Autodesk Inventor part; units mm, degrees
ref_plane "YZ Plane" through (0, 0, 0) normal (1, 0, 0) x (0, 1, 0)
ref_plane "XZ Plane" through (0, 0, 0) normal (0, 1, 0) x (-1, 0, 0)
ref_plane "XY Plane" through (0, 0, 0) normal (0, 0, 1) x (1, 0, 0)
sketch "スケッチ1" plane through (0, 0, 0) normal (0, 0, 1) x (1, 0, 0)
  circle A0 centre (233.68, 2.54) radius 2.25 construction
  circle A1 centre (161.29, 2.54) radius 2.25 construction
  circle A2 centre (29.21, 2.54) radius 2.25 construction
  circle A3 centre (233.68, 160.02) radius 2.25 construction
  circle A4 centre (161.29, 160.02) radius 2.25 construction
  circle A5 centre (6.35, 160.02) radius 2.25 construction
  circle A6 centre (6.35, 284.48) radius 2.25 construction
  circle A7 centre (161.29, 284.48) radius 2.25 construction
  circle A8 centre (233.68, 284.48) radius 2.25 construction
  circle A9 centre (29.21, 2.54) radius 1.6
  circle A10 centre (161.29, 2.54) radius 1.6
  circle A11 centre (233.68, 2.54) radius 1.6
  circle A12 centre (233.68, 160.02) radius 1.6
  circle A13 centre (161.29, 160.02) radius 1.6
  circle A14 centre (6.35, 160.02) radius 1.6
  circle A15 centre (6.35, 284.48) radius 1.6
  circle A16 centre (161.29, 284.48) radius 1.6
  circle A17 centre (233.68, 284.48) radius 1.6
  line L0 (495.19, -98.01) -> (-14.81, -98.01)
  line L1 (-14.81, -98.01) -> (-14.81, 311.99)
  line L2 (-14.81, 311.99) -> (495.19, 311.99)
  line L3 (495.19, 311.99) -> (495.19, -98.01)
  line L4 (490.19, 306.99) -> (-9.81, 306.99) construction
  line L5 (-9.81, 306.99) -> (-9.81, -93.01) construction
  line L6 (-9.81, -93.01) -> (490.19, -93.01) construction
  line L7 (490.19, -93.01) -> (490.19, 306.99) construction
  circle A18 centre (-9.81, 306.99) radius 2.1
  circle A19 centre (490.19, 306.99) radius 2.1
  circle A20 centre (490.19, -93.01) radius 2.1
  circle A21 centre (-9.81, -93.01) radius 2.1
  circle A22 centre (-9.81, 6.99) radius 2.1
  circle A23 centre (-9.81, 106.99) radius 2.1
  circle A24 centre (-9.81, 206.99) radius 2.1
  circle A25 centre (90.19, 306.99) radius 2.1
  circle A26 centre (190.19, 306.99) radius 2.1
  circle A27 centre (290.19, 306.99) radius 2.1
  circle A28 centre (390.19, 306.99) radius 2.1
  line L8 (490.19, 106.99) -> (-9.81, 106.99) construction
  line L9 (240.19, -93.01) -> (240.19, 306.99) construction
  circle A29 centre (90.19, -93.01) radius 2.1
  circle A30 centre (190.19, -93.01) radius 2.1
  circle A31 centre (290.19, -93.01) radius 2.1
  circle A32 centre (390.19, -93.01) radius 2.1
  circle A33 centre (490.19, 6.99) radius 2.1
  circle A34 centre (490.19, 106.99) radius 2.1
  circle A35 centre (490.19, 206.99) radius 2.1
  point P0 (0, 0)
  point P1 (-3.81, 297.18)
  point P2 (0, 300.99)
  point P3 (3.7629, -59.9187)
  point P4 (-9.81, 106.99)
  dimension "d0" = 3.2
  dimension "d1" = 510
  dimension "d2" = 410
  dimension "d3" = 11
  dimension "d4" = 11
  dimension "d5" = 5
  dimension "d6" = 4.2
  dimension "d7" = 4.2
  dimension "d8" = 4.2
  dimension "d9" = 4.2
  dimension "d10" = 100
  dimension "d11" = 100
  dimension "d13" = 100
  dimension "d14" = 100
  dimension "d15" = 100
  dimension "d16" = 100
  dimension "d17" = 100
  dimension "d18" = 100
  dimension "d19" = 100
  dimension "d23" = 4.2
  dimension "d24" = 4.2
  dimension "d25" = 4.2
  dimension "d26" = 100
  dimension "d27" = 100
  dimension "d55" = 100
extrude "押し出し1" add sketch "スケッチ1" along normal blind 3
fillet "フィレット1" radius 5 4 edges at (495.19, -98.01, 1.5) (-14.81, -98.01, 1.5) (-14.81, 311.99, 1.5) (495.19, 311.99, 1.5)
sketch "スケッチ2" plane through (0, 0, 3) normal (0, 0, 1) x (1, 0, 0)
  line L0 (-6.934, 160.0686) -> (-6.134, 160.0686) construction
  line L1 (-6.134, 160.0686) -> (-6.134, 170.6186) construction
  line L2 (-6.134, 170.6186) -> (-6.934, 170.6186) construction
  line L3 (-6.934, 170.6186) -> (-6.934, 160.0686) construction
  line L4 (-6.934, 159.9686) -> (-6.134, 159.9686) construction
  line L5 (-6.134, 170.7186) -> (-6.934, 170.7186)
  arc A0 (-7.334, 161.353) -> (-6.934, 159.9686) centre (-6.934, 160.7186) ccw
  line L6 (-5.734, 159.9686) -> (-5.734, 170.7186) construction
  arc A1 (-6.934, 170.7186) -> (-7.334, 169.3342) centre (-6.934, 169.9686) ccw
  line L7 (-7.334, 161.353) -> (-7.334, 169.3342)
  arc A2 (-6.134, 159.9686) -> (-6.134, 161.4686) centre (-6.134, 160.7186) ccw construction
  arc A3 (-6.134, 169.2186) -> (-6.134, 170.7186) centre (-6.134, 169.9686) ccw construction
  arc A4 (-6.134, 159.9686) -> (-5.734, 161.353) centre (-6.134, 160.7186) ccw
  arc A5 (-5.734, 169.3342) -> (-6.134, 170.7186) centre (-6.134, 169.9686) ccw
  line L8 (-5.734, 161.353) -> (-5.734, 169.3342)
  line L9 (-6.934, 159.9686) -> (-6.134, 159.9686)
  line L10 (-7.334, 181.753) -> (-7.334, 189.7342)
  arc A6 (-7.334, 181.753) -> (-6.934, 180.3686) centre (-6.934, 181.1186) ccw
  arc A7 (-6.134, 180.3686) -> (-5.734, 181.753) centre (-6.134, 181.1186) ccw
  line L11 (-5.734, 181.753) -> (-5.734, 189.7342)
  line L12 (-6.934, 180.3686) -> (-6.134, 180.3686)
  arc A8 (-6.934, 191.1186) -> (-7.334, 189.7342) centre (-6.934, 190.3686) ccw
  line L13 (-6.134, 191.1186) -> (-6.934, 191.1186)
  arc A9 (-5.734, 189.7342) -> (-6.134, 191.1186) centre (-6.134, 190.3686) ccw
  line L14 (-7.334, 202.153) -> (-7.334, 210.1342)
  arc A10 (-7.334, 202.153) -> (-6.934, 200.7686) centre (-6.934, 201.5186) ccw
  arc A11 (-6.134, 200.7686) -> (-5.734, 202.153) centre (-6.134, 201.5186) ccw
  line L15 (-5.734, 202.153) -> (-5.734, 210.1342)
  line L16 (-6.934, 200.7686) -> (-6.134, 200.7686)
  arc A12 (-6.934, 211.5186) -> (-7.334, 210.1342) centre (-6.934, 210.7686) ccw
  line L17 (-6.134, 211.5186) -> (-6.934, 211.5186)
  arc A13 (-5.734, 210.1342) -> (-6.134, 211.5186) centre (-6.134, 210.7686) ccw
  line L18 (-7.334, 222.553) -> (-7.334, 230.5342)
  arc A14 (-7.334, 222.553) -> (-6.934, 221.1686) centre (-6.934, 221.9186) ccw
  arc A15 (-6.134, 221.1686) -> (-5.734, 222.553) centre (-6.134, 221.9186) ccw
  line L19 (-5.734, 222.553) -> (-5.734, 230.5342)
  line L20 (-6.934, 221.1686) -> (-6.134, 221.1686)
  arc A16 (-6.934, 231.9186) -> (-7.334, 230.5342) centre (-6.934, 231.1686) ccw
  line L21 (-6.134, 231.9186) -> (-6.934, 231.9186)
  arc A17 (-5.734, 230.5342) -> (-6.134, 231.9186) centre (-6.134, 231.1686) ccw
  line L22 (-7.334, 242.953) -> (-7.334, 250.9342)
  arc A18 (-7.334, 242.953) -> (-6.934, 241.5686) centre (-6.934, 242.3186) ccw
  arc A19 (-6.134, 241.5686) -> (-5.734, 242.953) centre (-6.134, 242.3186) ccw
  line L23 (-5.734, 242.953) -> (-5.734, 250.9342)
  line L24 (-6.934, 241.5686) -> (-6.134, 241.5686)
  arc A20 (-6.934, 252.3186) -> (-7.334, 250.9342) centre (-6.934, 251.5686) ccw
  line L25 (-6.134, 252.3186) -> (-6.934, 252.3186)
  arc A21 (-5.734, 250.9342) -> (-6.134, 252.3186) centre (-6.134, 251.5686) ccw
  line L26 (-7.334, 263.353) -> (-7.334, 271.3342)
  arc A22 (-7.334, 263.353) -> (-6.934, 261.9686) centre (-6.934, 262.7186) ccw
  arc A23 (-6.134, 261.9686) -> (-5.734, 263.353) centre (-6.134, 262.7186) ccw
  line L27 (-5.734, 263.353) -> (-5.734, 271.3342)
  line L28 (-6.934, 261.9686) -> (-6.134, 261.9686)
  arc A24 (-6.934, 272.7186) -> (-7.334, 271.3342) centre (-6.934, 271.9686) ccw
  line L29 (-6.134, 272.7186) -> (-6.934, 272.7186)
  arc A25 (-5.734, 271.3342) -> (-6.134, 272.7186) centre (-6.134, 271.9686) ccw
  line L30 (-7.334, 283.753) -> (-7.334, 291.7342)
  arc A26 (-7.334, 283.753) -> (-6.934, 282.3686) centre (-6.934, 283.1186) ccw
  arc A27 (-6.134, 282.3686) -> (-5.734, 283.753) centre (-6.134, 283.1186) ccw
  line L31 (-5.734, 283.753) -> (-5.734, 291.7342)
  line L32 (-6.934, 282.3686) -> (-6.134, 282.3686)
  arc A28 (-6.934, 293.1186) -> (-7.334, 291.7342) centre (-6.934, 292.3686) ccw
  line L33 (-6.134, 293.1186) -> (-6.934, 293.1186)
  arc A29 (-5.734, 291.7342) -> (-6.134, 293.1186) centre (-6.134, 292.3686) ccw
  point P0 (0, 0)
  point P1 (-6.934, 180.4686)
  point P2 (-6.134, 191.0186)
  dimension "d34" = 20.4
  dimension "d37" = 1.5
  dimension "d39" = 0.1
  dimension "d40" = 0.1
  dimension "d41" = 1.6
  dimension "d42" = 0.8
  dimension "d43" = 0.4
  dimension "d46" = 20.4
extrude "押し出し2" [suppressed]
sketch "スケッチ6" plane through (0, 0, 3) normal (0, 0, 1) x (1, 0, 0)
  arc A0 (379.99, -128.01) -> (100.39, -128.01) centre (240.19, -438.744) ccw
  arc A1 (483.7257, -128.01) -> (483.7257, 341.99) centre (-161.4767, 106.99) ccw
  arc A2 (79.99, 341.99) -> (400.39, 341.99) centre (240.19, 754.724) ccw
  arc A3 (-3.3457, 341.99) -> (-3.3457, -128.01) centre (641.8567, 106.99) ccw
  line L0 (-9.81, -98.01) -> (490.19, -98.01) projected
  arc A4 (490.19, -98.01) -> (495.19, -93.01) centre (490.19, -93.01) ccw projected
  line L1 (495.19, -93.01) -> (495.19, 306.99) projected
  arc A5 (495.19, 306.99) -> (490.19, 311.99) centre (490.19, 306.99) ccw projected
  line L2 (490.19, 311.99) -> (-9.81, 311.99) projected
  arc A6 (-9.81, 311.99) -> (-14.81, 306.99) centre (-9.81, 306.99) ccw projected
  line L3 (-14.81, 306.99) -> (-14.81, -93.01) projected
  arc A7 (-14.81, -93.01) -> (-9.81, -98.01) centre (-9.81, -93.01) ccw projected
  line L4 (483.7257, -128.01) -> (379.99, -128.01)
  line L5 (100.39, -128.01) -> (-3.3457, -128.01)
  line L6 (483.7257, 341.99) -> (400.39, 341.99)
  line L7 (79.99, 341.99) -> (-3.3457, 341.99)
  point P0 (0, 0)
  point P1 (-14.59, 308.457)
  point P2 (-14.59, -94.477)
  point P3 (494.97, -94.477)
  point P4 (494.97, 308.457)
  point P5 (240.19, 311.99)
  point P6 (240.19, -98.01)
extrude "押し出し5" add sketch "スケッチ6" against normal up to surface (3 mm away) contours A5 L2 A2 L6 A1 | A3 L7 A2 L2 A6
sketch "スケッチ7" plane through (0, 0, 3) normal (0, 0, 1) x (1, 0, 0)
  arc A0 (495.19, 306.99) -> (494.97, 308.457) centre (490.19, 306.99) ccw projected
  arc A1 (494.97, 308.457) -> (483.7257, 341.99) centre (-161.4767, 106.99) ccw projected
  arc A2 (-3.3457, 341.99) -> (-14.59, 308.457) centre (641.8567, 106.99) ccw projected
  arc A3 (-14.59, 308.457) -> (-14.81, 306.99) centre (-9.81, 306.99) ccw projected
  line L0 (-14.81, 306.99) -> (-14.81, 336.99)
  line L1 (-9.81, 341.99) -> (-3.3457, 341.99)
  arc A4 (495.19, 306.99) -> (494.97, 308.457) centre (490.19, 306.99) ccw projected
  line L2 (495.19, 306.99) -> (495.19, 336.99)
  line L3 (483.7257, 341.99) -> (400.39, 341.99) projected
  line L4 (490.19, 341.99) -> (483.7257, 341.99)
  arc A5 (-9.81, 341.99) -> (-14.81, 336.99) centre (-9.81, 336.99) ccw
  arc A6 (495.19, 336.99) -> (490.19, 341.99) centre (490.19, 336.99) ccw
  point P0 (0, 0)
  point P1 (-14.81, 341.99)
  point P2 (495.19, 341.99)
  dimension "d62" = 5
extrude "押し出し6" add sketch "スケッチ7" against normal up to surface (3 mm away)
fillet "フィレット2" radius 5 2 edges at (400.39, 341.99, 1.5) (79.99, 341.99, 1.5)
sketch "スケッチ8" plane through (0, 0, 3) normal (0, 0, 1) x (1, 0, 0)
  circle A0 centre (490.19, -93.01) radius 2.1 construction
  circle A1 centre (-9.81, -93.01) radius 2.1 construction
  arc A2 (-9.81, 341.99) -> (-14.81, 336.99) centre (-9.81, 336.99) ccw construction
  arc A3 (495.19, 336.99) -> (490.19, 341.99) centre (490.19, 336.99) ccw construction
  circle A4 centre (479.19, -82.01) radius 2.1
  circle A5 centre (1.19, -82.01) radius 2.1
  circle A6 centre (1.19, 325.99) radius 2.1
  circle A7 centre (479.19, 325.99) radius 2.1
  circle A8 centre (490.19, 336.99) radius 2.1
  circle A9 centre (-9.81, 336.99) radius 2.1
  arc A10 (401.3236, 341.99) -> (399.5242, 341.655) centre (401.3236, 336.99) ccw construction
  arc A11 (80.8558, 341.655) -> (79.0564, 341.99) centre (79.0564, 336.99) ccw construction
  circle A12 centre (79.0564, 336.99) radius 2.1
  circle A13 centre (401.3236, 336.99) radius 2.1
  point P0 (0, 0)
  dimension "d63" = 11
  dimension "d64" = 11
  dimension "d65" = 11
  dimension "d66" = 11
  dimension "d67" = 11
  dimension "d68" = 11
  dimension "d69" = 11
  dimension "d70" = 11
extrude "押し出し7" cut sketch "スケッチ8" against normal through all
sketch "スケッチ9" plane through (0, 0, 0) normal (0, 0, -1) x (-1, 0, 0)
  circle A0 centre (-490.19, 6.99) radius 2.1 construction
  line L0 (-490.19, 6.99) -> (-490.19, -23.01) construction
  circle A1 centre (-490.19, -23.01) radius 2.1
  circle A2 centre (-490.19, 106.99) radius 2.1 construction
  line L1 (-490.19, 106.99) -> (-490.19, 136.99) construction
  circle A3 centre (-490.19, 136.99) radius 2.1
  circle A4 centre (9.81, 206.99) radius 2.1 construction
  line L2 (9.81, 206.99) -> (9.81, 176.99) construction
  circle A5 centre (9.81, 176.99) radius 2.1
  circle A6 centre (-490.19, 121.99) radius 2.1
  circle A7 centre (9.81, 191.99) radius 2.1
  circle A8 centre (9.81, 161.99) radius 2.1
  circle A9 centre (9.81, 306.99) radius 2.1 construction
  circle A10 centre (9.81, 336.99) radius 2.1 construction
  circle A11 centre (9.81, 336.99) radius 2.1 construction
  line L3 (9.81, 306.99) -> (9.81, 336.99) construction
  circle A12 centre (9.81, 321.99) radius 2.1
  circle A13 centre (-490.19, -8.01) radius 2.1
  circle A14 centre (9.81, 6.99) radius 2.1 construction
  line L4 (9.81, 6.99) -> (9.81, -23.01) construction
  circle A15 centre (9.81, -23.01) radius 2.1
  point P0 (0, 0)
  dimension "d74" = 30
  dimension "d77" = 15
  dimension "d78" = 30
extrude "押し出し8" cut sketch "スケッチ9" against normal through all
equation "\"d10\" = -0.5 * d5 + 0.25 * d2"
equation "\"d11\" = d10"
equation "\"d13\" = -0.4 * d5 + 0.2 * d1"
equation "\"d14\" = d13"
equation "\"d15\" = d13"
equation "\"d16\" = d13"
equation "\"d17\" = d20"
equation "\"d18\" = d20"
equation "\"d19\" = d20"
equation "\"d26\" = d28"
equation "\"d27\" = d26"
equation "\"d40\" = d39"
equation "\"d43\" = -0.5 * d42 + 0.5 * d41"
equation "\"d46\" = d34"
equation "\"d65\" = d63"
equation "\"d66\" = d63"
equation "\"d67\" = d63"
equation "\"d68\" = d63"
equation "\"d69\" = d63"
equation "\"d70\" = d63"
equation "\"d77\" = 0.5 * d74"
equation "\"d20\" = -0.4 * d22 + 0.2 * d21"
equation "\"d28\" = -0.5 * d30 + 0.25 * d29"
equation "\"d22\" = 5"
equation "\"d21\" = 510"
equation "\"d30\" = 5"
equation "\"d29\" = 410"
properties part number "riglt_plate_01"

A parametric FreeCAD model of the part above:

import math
import FreeCAD as App
import Part
import Sketcher
from FreeCAD import Vector


def edges_at(feature, points):
    """Names of the edges that pass closest to the given points."""
    edges = feature.Shape.Edges
    near = lambda p: min(range(len(edges)), key=lambda i: edges[i].distToShape(Part.Vertex(*p))[0])
    return sorted({f"Edge{near(p) + 1}" for p in points})

doc = App.newDocument("Part")
params = doc.addObject("Spreadsheet::Sheet", "Params")
for row, (alias, value) in enumerate([
    ("sketch1_diameter", "4.2 mm"),
    ("sketch1_diameter2", "3.2 mm"),
    ("sketch1_width", "510 mm"),
    ("sketch1_height", "410 mm"),
    ("pad1_length", "3 mm"),
    ("fillet_radius", "5 mm"),
    ("sketch2_radius", "5 mm"),
    ("sketch2_width", "250 mm"),
    ("pad2_length", "3 mm"),
    ("sketch3_radius", "5 mm"),
    ("sketch3_radius2", "5 mm"),
    ("sketch3_height", "30 mm"),
    ("sketch3_height2", "30 mm"),
    ("sketch3_radius3", "686.76 mm"),
    ("pad3_length", "3 mm"),
    ("fillet2_radius", "5 mm"),
    ("sketch4_diameter", "4.2 mm"),
    ("sketch5_diameter", "4.2 mm"),
], start=1):
    params.set(f"A{row}", alias)
    params.set(f"B{row}", "=" + value)
    params.setAlias(f"B{row}", alias)

body = doc.addObject("PartDesign::Body", "Body")

sketch1 = body.newObject("Sketcher::SketchObject", "Sketch")
sketch1.AttachmentSupport = (doc.getObject("XY_Plane"), [""])
sketch1.MapMode = "FlatFace"
sketch1.addGeometry(Part.LineSegment(Vector(-14.8, -98, 0), Vector(495.2, -98, 0)), False)
sketch1.addGeometry(Part.LineSegment(Vector(495.2, -98, 0), Vector(495.2, 312, 0)), False)
sketch1.addGeometry(Part.LineSegment(Vector(495.2, 312, 0), Vector(-14.8, 312, 0)), False)
sketch1.addGeometry(Part.LineSegment(Vector(-14.8, 312, 0), Vector(-14.8, -98, 0)), False)
sketch1.addGeometry(Part.Circle(Vector(-9.8, -93, 0), Vector(0, 0, 1), 2.1), False)
sketch1.addGeometry(Part.Circle(Vector(90.2, -93, 0), Vector(0, 0, 1), 2.1), False)
sketch1.addGeometry(Part.Circle(Vector(29.2, 2.5, 0), Vector(0, 0, 1), 1.6), False)
sketch1.addGeometry(Part.Circle(Vector(190.2, -93, 0), Vector(0, 0, 1), 2.1), False)
sketch1.addGeometry(Part.Circle(Vector(161.3, 2.5, 0), Vector(0, 0, 1), 1.6), False)
sketch1.addGeometry(Part.Circle(Vector(233.7, 2.5, 0), Vector(0, 0, 1), 1.6), False)
sketch1.addGeometry(Part.Circle(Vector(-9.8, 7, 0), Vector(0, 0, 1), 2.1), False)
sketch1.addGeometry(Part.Circle(Vector(290.2, -93, 0), Vector(0, 0, 1), 2.1), False)
sketch1.addGeometry(Part.Circle(Vector(390.2, -93, 0), Vector(0, 0, 1), 2.1), False)
sketch1.addGeometry(Part.Circle(Vector(490.2, -93, 0), Vector(0, 0, 1), 2.1), False)
sketch1.addGeometry(Part.Circle(Vector(490.2, 7, 0), Vector(0, 0, 1), 2.1), False)
sketch1.addGeometry(Part.Circle(Vector(-9.8, 107, 0), Vector(0, 0, 1), 2.1), False)
sketch1.addGeometry(Part.Circle(Vector(6.3, 160, 0), Vector(0, 0, 1), 1.6), False)
sketch1.addGeometry(Part.Circle(Vector(-9.8, 207, 0), Vector(0, 0, 1), 2.1), False)
sketch1.addGeometry(Part.Circle(Vector(161.3, 160, 0), Vector(0, 0, 1), 1.6), False)
sketch1.addGeometry(Part.Circle(Vector(233.7, 160, 0), Vector(0, 0, 1), 1.6), False)
sketch1.addGeometry(Part.Circle(Vector(6.3, 284.5, 0), Vector(0, 0, 1), 1.6), False)
sketch1.addGeometry(Part.Circle(Vector(-9.8, 307, 0), Vector(0, 0, 1), 2.1), False)
sketch1.addGeometry(Part.Circle(Vector(90.2, 307, 0), Vector(0, 0, 1), 2.1), False)
sketch1.addGeometry(Part.Circle(Vector(161.3, 284.5, 0), Vector(0, 0, 1), 1.6), False)
sketch1.addGeometry(Part.Circle(Vector(233.7, 284.5, 0), Vector(0, 0, 1), 1.6), False)
sketch1.addGeometry(Part.Circle(Vector(190.2, 307, 0), Vector(0, 0, 1), 2.1), False)
sketch1.addGeometry(Part.Circle(Vector(490.2, 107, 0), Vector(0, 0, 1), 2.1), False)
sketch1.addGeometry(Part.Circle(Vector(490.2, 207, 0), Vector(0, 0, 1), 2.1), False)
sketch1.addGeometry(Part.Circle(Vector(290.2, 307, 0), Vector(0, 0, 1), 2.1), False)
sketch1.addGeometry(Part.Circle(Vector(390.2, 307, 0), Vector(0, 0, 1), 2.1), False)
sketch1.addGeometry(Part.Circle(Vector(490.2, 307, 0), Vector(0, 0, 1), 2.1), False)
sketch1.addConstraint(Sketcher.Constraint("Coincident", 0, 2, 1, 1))
sketch1.addConstraint(Sketcher.Constraint("Coincident", 1, 2, 2, 1))
sketch1.addConstraint(Sketcher.Constraint("Coincident", 2, 2, 3, 1))
sketch1.addConstraint(Sketcher.Constraint("Coincident", 3, 2, 0, 1))
sketch1.addConstraint(Sketcher.Constraint("Horizontal", 0))
sketch1.addConstraint(Sketcher.Constraint("Vertical", 1))
sketch1.addConstraint(Sketcher.Constraint("Horizontal", 2))
sketch1.addConstraint(Sketcher.Constraint("Vertical", 3))
sketch1.addConstraint(Sketcher.Constraint("Equal", 4, 5))
sketch1.addConstraint(Sketcher.Constraint("Equal", 5, 7))
sketch1.addConstraint(Sketcher.Constraint("Equal", 6, 8))
sketch1.addConstraint(Sketcher.Constraint("Equal", 8, 9))
sketch1.addConstraint(Sketcher.Constraint("Equal", 7, 10))
sketch1.addConstraint(Sketcher.Constraint("Equal", 10, 11))
sketch1.addConstraint(Sketcher.Constraint("Equal", 11, 12))
sketch1.addConstraint(Sketcher.Constraint("Equal", 12, 13))
sketch1.addConstraint(Sketcher.Constraint("Equal", 13, 14))
sketch1.addConstraint(Sketcher.Constraint("Equal", 14, 15))
sketch1.addConstraint(Sketcher.Constraint("Equal", 9, 16))
sketch1.addConstraint(Sketcher.Constraint("Equal", 15, 17))
sketch1.addConstraint(Sketcher.Constraint("Equal", 16, 18))
sketch1.addConstraint(Sketcher.Constraint("Equal", 18, 19))
sketch1.addConstraint(Sketcher.Constraint("Equal", 19, 20))
sketch1.addConstraint(Sketcher.Constraint("Equal", 17, 21))
sketch1.addConstraint(Sketcher.Constraint("Equal", 21, 22))
sketch1.addConstraint(Sketcher.Constraint("Equal", 20, 23))
sketch1.addConstraint(Sketcher.Constraint("Equal", 23, 24))
sketch1.addConstraint(Sketcher.Constraint("Equal", 22, 25))
sketch1.addConstraint(Sketcher.Constraint("Equal", 25, 26))
sketch1.addConstraint(Sketcher.Constraint("Equal", 26, 27))
sketch1.addConstraint(Sketcher.Constraint("Equal", 27, 28))
sketch1.addConstraint(Sketcher.Constraint("Equal", 28, 29))
sketch1.addConstraint(Sketcher.Constraint("Equal", 29, 30))
sketch1.addConstraint(Sketcher.Constraint("Horizontal", 4, 3, 5, 3))
sketch1.addConstraint(Sketcher.Constraint("Horizontal", 5, 3, 7, 3))
sketch1.addConstraint(Sketcher.Constraint("Horizontal", 6, 3, 8, 3))
sketch1.addConstraint(Sketcher.Constraint("Horizontal", 8, 3, 9, 3))
sketch1.addConstraint(Sketcher.Constraint("Horizontal", 7, 3, 11, 3))
sketch1.addConstraint(Sketcher.Constraint("Horizontal", 11, 3, 12, 3))
sketch1.addConstraint(Sketcher.Constraint("Horizontal", 12, 3, 13, 3))
sketch1.addConstraint(Sketcher.Constraint("Horizontal", 10, 3, 14, 3))
sketch1.addConstraint(Sketcher.Constraint("Horizontal", 16, 3, 18, 3))
sketch1.addConstraint(Sketcher.Constraint("Horizontal", 18, 3, 19, 3))
sketch1.addConstraint(Sketcher.Constraint("Horizontal", 21, 3, 22, 3))
sketch1.addConstraint(Sketcher.Constraint("Horizontal", 20, 3, 23, 3))
sketch1.addConstraint(Sketcher.Constraint("Horizontal", 23, 3, 24, 3))
sketch1.addConstraint(Sketcher.Constraint("Horizontal", 22, 3, 25, 3))
sketch1.addConstraint(Sketcher.Constraint("Horizontal", 15, 3, 26, 3))
sketch1.addConstraint(Sketcher.Constraint("Horizontal", 17, 3, 27, 3))
sketch1.addConstraint(Sketcher.Constraint("Horizontal", 25, 3, 28, 3))
sketch1.addConstraint(Sketcher.Constraint("Horizontal", 28, 3, 29, 3))
sketch1.addConstraint(Sketcher.Constraint("Horizontal", 29, 3, 30, 3))
sketch1.addConstraint(Sketcher.Constraint("Vertical", 4, 3, 10, 3))
sketch1.addConstraint(Sketcher.Constraint("Vertical", 13, 3, 14, 3))
sketch1.addConstraint(Sketcher.Constraint("Vertical", 10, 3, 15, 3))
sketch1.addConstraint(Sketcher.Constraint("Vertical", 15, 3, 17, 3))
sketch1.addConstraint(Sketcher.Constraint("Vertical", 8, 3, 18, 3))
sketch1.addConstraint(Sketcher.Constraint("Vertical", 9, 3, 19, 3))
sketch1.addConstraint(Sketcher.Constraint("Vertical", 16, 3, 20, 3))
sketch1.addConstraint(Sketcher.Constraint("Vertical", 17, 3, 21, 3))
sketch1.addConstraint(Sketcher.Constraint("Vertical", 5, 3, 22, 3))
sketch1.addConstraint(Sketcher.Constraint("Vertical", 18, 3, 23, 3))
sketch1.addConstraint(Sketcher.Constraint("Vertical", 19, 3, 24, 3))
sketch1.addConstraint(Sketcher.Constraint("Vertical", 7, 3, 25, 3))
sketch1.addConstraint(Sketcher.Constraint("Vertical", 14, 3, 26, 3))
sketch1.addConstraint(Sketcher.Constraint("Vertical", 26, 3, 27, 3))
sketch1.addConstraint(Sketcher.Constraint("Vertical", 11, 3, 28, 3))
sketch1.addConstraint(Sketcher.Constraint("Vertical", 12, 3, 29, 3))
sketch1.addConstraint(Sketcher.Constraint("Vertical", 27, 3, 30, 3))
sketch1.addConstraint(Sketcher.Constraint("Diameter", 4, 4.2))
sketch1.addConstraint(Sketcher.Constraint("Diameter", 6, 3.2))
sketch1.addConstraint(Sketcher.Constraint("DistanceX", 0, 1, 0, 2, 510.0))
sketch1.addConstraint(Sketcher.Constraint("DistanceY", 1, 1, 1, 2, 410.0))
sketch1.addConstraint(Sketcher.Constraint("DistanceX", 4, 3, 5, 3, 100.0))
sketch1.addConstraint(Sketcher.Constraint("DistanceX", 5, 3, 7, 3, 100.0))
sketch1.addConstraint(Sketcher.Constraint("DistanceY", 4, 3, 10, 3, 100.0))
sketch1.addConstraint(Sketcher.Constraint("DistanceX", 7, 3, 11, 3, 100.0))
sketch1.addConstraint(Sketcher.Constraint("DistanceX", 11, 3, 12, 3, 100.0))
sketch1.addConstraint(Sketcher.Constraint("DistanceX", 12, 3, 13, 3, 100.0))
sketch1.addConstraint(Sketcher.Constraint("DistanceY", 10, 3, 15, 3, 100.0))
sketch1.addConstraint(Sketcher.Constraint("DistanceY", 15, 3, 17, 3, 100.0))
sketch1.addConstraint(Sketcher.Constraint("DistanceY", 17, 3, 21, 3, 100.0))
sketch1.addConstraint(Sketcher.Constraint("DistanceX", 13, 3, 0, 2, 5.0))
sketch1.addConstraint(Sketcher.Constraint("DistanceY", 0, 2, 13, 3, 5.0))
sketch1.addConstraint(Sketcher.Constraint("DistanceX", 8, 3, 7, 3, 28.9))
sketch1.addConstraint(Sketcher.Constraint("DistanceX", 4, 3, -1, 1, 9.81))
sketch1.addConstraint(Sketcher.Constraint("DistanceY", 4, 3, -1, 1, 93.01))
sketch1.addConstraint(Sketcher.Constraint("DistanceX", -1, 1, 6, 3, 29.21))
sketch1.addConstraint(Sketcher.Constraint("DistanceY", -1, 1, 6, 3, 2.54))
sketch1.addConstraint(Sketcher.Constraint("DistanceX", -1, 1, 9, 3, 233.68))
sketch1.addConstraint(Sketcher.Constraint("DistanceX", -1, 1, 16, 3, 6.35))
sketch1.addConstraint(Sketcher.Constraint("DistanceY", -1, 1, 16, 3, 160.02))
sketch1.addConstraint(Sketcher.Constraint("DistanceY", -1, 1, 20, 3, 284.48))
sketch1.setExpression("Constraints[69]", "Params.sketch1_diameter")
sketch1.setExpression("Constraints[70]", "Params.sketch1_diameter2")
sketch1.setExpression("Constraints[71]", "Params.sketch1_width")
sketch1.setExpression("Constraints[72]", "Params.sketch1_height")
pad1 = body.newObject("PartDesign::Pad", "Pad")
pad1.Profile = sketch1
pad1.setExpression("Length", "Params.pad1_length")
doc.recompute()

fillet = body.newObject("PartDesign::Fillet", "Fillet")
fillet.Base = (pad1, edges_at(pad1, [
    (495.19, -98.01, 1.5),
    (-14.81, -98.01, 1.5),
    (-14.81, 311.99, 1.5),
    (495.19, 311.99, 1.5),
]))
fillet.setExpression("Radius", "Params.fillet_radius")

sketch2 = body.newObject("Sketcher::SketchObject", "Sketch001")
sketch2.AttachmentSupport = (doc.getObject("XY_Plane"), [""])
sketch2.MapMode = "FlatFace"
sketch2.AttachmentOffset = App.Placement(Vector(0, 0, 3), App.Rotation())
sketch2.addGeometry(Part.ArcOfCircle(Part.Circle(Vector(490, 307, 0), Vector(0, 0, 1), 5), math.radians(17), math.radians(90)), False)
sketch2.addGeometry(Part.ArcOfCircle(Part.Circle(Vector(-161, 107, 0), Vector(0, 0, 1), 687), math.radians(17.06), math.radians(20.01)), False)
sketch2.addGeometry(Part.LineSegment(Vector(484, 342, 0), Vector(400, 342, 0)), False)
sketch2.addGeometry(Part.ArcOfCircle(Part.Circle(Vector(240, 755, 0), Vector(0, 0, 1), 443), math.radians(-90), math.radians(-69)), False)
sketch2.addGeometry(Part.LineSegment(Vector(240, 312, 0), Vector(490, 312, 0)), False)
sketch2.addGeometry(Part.ArcOfCircle(Part.Circle(Vector(642, 107, 0), Vector(0, 0, 1), 687), math.radians(159.99), math.radians(162.94)), False)
sketch2.addGeometry(Part.ArcOfCircle(Part.Circle(Vector(-10, 307, 0), Vector(0, 0, 1), 5), math.radians(90), math.radians(163)), False)
sketch2.addGeometry(Part.LineSegment(Vector(-10, 312, 0), Vector(240, 312, 0)), False)
sketch2.addGeometry(Part.ArcOfCircle(Part.Circle(Vector(240, 755, 0), Vector(0, 0, 1), 443), math.radians(-111), math.radians(-90)), False)
sketch2.addGeometry(Part.LineSegment(Vector(80, 342, 0), Vector(-3, 342, 0)), False)
sketch2.addConstraint(Sketcher.Constraint("Tangent", 0, 1, 1, 1))
sketch2.addConstraint(Sketcher.Constraint("Coincident", 1, 2, 2, 1))
sketch2.addConstraint(Sketcher.Constraint("Coincident", 2, 2, 3, 2))
sketch2.addConstraint(Sketcher.Constraint("Tangent", 3, 1, 4, 1))
sketch2.addConstraint(Sketcher.Constraint("Tangent", 4, 2, 0, 2))
sketch2.addConstraint(Sketcher.Constraint("Tangent", 5, 2, 6, 2))
sketch2.addConstraint(Sketcher.Constraint("Tangent", 6, 1, 7, 1))
sketch2.addConstraint(Sketcher.Constraint("Tangent", 7, 2, 8, 2))
sketch2.addConstraint(Sketcher.Constraint("Coincident", 8, 1, 9, 1))
sketch2.addConstraint(Sketcher.Constraint("Coincident", 9, 2, 5, 1))
sketch2.addConstraint(Sketcher.Constraint("Horizontal", 2))
sketch2.addConstraint(Sketcher.Constraint("Horizontal", 4))
sketch2.addConstraint(Sketcher.Constraint("Horizontal", 7))
sketch2.addConstraint(Sketcher.Constraint("Horizontal", 9))
sketch2.addConstraint(Sketcher.Constraint("Coincident", 8, 3, 3, 3))
sketch2.addConstraint(Sketcher.Constraint("Equal", 1, 5))
sketch2.addConstraint(Sketcher.Constraint("Equal", 0, 6))
sketch2.addConstraint(Sketcher.Constraint("Equal", 3, 8))
sketch2.addConstraint(Sketcher.Constraint("Horizontal", 1, 3, 5, 3))
sketch2.addConstraint(Sketcher.Constraint("Horizontal", 2, 2, 8, 1))
sketch2.addConstraint(Sketcher.Constraint("Equal", 4, 7))
sketch2.addConstraint(Sketcher.Constraint("Radius", 0, 5.0))
sketch2.addConstraint(Sketcher.Constraint("DistanceX", 4, 1, 4, 2, 250.0))
sketch2.addConstraint(Sketcher.Constraint("Radius", 3, 442.734))
sketch2.addConstraint(Sketcher.Constraint("DistanceY", 1, 3, 0, 3, 200.0))
sketch2.addConstraint(Sketcher.Constraint("DistanceY", 0, 3, 2, 2, 35.0))
sketch2.addConstraint(Sketcher.Constraint("Radius", 1, 686.6667))
sketch2.addConstraint(Sketcher.Constraint("DistanceX", -1, 1, 0, 3, 490.19))
sketch2.addConstraint(Sketcher.Constraint("DistanceY", -1, 1, 0, 3, 306.99))
sketch2.setExpression("Constraints[21]", "Params.sketch2_radius")
sketch2.setExpression("Constraints[22]", "Params.sketch2_width")
pad2 = body.newObject("PartDesign::Pad", "Pad001")
pad2.Profile = sketch2
pad2.setExpression("Length", "Params.pad2_length")
pad2.Reversed = True

sketch3 = body.newObject("Sketcher::SketchObject", "Sketch002")
sketch3.AttachmentSupport = (doc.getObject("XY_Plane"), [""])
sketch3.MapMode = "FlatFace"
sketch3.AttachmentOffset = App.Placement(Vector(0, 0, 3), App.Rotation())
sketch3.addGeometry(Part.ArcOfCircle(Part.Circle(Vector(490.187789, 306.989835, 0), Vector(0, 0, 1), 5.002211), math.radians(0.001889), math.radians(17.055823)), False)
sketch3.addGeometry(Part.LineSegment(Vector(495.19, 306.99, 0), Vector(495.19, 336.99, 0)), False)
sketch3.addGeometry(Part.ArcOfCircle(Part.Circle(Vector(490.19, 336.99, 0), Vector(0, 0, 1), 5), math.radians(0), math.radians(90)), False)
sketch3.addGeometry(Part.LineSegment(Vector(490.19, 341.99, 0), Vector(483.7257, 341.99, 0)), False)
sketch3.addGeometry(Part.ArcOfCircle(Part.Circle(Vector(-161.3878, 107.018542, 0), Vector(0, 0, 1), 686.573385), math.radians(17.061429), math.radians(20.01328)), False)
sketch3.addGeometry(Part.ArcOfCircle(Part.Circle(Vector(641.94486, 106.95917, 0), Vector(0, 0, 1), 686.760073), math.radians(159.987121), math.radians(162.938169)), False)
sketch3.addGeometry(Part.LineSegment(Vector(-3.3457, 341.99, 0), Vector(-9.81, 341.99, 0)), False)
sketch3.addGeometry(Part.ArcOfCircle(Part.Circle(Vector(-9.81, 336.99, 0), Vector(0, 0, 1), 5), math.radians(90), math.radians(180)), False)
sketch3.addGeometry(Part.LineSegment(Vector(-14.81, 336.99, 0), Vector(-14.81, 306.99, 0)), False)
sketch3.addGeometry(Part.ArcOfCircle(Part.Circle(Vector(-9.81216, 306.990491, 0), Vector(0, 0, 1), 4.99784), math.radians(162.936664), math.radians(180.005624)), False)
sketch3.addConstraint(Sketcher.Constraint("Coincident", 0, 1, 1, 1))
sketch3.addConstraint(Sketcher.Constraint("Coincident", 1, 2, 2, 1))
sketch3.addConstraint(Sketcher.Constraint("Coincident", 2, 2, 3, 1))
sketch3.addConstraint(Sketcher.Constraint("Coincident", 3, 2, 4, 2))
sketch3.addConstraint(Sketcher.Constraint("Coincident", 4, 1, 0, 2))
sketch3.addConstraint(Sketcher.Constraint("Coincident", 5, 1, 6, 1))
sketch3.addConstraint(Sketcher.Constraint("Coincident", 6, 2, 7, 1))
sketch3.addConstraint(Sketcher.Constraint("Coincident", 7, 2, 8, 1))
sketch3.addConstraint(Sketcher.Constraint("Coincident", 8, 2, 9, 2))
sketch3.addConstraint(Sketcher.Constraint("Coincident", 9, 1, 5, 2))
sketch3.addConstraint(Sketcher.Constraint("Vertical", 1))
sketch3.addConstraint(Sketcher.Constraint("Horizontal", 3))
sketch3.addConstraint(Sketcher.Constraint("Horizontal", 6))
sketch3.addConstraint(Sketcher.Constraint("Vertical", 8))
sketch3.addConstraint(Sketcher.Constraint("Radius", 2, 5.0))
sketch3.addConstraint(Sketcher.Constraint("Radius", 7, 5.0))
sketch3.addConstraint(Sketcher.Constraint("DistanceX", 2, 2, 1, 2, 5.0))
sketch3.addConstraint(Sketcher.Constraint("DistanceY", 1, 2, 2, 2, 5.0))
sketch3.addConstraint(Sketcher.Constraint("DistanceX", 7, 2, 6, 2, 5.0))
sketch3.addConstraint(Sketcher.Constraint("DistanceY", 7, 2, 6, 2, 5.0))
sketch3.addConstraint(Sketcher.Constraint("DistanceY", 1, 1, 1, 2, 30.0))
sketch3.addConstraint(Sketcher.Constraint("DistanceY", 8, 2, 8, 1, 30.0))
sketch3.addConstraint(Sketcher.Constraint("Radius", 5, 686.76))
sketch3.addConstraint(Sketcher.Constraint("DistanceX", 7, 3, 2, 3, 500.0))
sketch3.addConstraint(Sketcher.Constraint("DistanceX", 9, 3, 0, 3, 500.0))
sketch3.addConstraint(Sketcher.Constraint("DistanceY", 0, 1, 7, 3, 30.0))
sketch3.addConstraint(Sketcher.Constraint("Radius", 0, 5.0022))
sketch3.addConstraint(Sketcher.Constraint("Radius", 4, 686.5734))
sketch3.addConstraint(Sketcher.Constraint("DistanceX", -1, 1, 2, 3, 490.19))
sketch3.addConstraint(Sketcher.Constraint("DistanceY", -1, 1, 2, 3, 336.99))
sketch3.addConstraint(Sketcher.Constraint("DistanceX", -1, 1, 4, 1, 494.97))
sketch3.addConstraint(Sketcher.Constraint("DistanceX", 9, 1, -1, 1, 14.59))
sketch3.addConstraint(Sketcher.Constraint("DistanceX", 3, 2, 3, 1, 6.4643))
sketch3.addConstraint(Sketcher.Constraint("DistanceX", 6, 2, 6, 1, 6.4643))
sketch3.addConstraint(Sketcher.Constraint("DistanceY", -1, 1, 9, 1, 308.457))
sketch3.addConstraint(Sketcher.Constraint("DistanceY", 4, 3, 9, 3, 199.972))
sketch3.setExpression("Constraints[14]", "Params.sketch3_radius")
sketch3.setExpression("Constraints[15]", "Params.sketch3_radius2")
sketch3.setExpression("Constraints[20]", "Params.sketch3_height")
sketch3.setExpression("Constraints[21]", "Params.sketch3_height2")
sketch3.setExpression("Constraints[22]", "Params.sketch3_radius3")
pad3 = body.newObject("PartDesign::Pad", "Pad002")
pad3.Profile = sketch3
pad3.setExpression("Length", "Params.pad3_length")
pad3.Reversed = True
doc.recompute()

fillet2 = body.newObject("PartDesign::Fillet", "Fillet001")
fillet2.Base = (pad3, edges_at(pad3, [(400.39, 341.99, 1.5), (79.99, 341.99, 1.5)]))
fillet2.setExpression("Radius", "Params.fillet2_radius")

sketch4 = body.newObject("Sketcher::SketchObject", "Sketch003")
sketch4.AttachmentSupport = (doc.getObject("XY_Plane"), [""])
sketch4.MapMode = "FlatFace"
sketch4.AttachmentOffset = App.Placement(Vector(0, 0, 3), App.Rotation())
sketch4.addGeometry(Part.Circle(Vector(479.2, -82, 0), Vector(0, 0, 1), 2.1), False)
sketch4.addGeometry(Part.Circle(Vector(1.2, -82, 0), Vector(0, 0, 1), 2.1), False)
sketch4.addGeometry(Part.Circle(Vector(1.2, 326, 0), Vector(0, 0, 1), 2.1), False)
sketch4.addGeometry(Part.Circle(Vector(479.2, 326, 0), Vector(0, 0, 1), 2.1), False)
sketch4.addGeometry(Part.Circle(Vector(490.2, 337, 0), Vector(0, 0, 1), 2.1), False)
sketch4.addGeometry(Part.Circle(Vector(-9.8, 337, 0), Vector(0, 0, 1), 2.1), False)
sketch4.addGeometry(Part.Circle(Vector(79.1, 337, 0), Vector(0, 0, 1), 2.1), False)
sketch4.addGeometry(Part.Circle(Vector(401.3, 337, 0), Vector(0, 0, 1), 2.1), False)
sketch4.addConstraint(Sketcher.Constraint("Equal", 0, 1))
sketch4.addConstraint(Sketcher.Constraint("Equal", 1, 2))
sketch4.addConstraint(Sketcher.Constraint("Equal", 2, 3))
sketch4.addConstraint(Sketcher.Constraint("Equal", 3, 4))
sketch4.addConstraint(Sketcher.Constraint("Equal", 4, 5))
sketch4.addConstraint(Sketcher.Constraint("Equal", 5, 6))
sketch4.addConstraint(Sketcher.Constraint("Equal", 6, 7))
sketch4.addConstraint(Sketcher.Constraint("Horizontal", 0, 3, 1, 3))
sketch4.addConstraint(Sketcher.Constraint("Horizontal", 2, 3, 3, 3))
sketch4.addConstraint(Sketcher.Constraint("Horizontal", 4, 3, 5, 3))
sketch4.addConstraint(Sketcher.Constraint("Horizontal", 5, 3, 6, 3))
sketch4.addConstraint(Sketcher.Constraint("Horizontal", 6, 3, 7, 3))
sketch4.addConstraint(Sketcher.Constraint("Vertical", 1, 3, 2, 3))
sketch4.addConstraint(Sketcher.Constraint("Vertical", 0, 3, 3, 3))
sketch4.addConstraint(Sketcher.Constraint("DistanceX", 3, 3, 4, 3, 11.0))
sketch4.addConstraint(Sketcher.Constraint("DistanceY", 3, 3, 4, 3, 11.0))
sketch4.addConstraint(Sketcher.Constraint("DistanceX", 5, 3, 2, 3, 11.0))
sketch4.addConstraint(Sketcher.Constraint("Diameter", 0, 4.2))
sketch4.addConstraint(Sketcher.Constraint("DistanceX", 1, 3, 0, 3, 478.0))
sketch4.addConstraint(Sketcher.Constraint("DistanceY", 1, 3, 2, 3, 408.0))
sketch4.addConstraint(Sketcher.Constraint("DistanceX", -1, 1, 0, 3, 479.19))
sketch4.addConstraint(Sketcher.Constraint("DistanceY", 0, 3, -1, 1, 82.01))
sketch4.addConstraint(Sketcher.Constraint("DistanceX", -1, 1, 6, 3, 79.0564))
sketch4.addConstraint(Sketcher.Constraint("DistanceX", -1, 1, 7, 3, 401.3236))
sketch4.setExpression("Constraints[17]", "Params.sketch4_diameter")
pocket1 = body.newObject("PartDesign::Pocket", "Pocket")
pocket1.Profile = sketch4
pocket1.Type = "ThroughAll"

sketch5 = body.newObject("Sketcher::SketchObject", "Sketch004")
sketch5.AttachmentSupport = (doc.getObject("XY_Plane"), [""])
sketch5.MapMode = "FlatFace"
sketch5.addGeometry(Part.Circle(Vector(490.2, -23, 0), Vector(0, 0, 1), 2.1), False)
sketch5.addGeometry(Part.Circle(Vector(490.2, 137, 0), Vector(0, 0, 1), 2.1), False)
sketch5.addGeometry(Part.Circle(Vector(-9.8, 177, 0), Vector(0, 0, 1), 2.1), False)
sketch5.addGeometry(Part.Circle(Vector(490.2, 122, 0), Vector(0, 0, 1), 2.1), False)
sketch5.addGeometry(Part.Circle(Vector(-9.8, 192, 0), Vector(0, 0, 1), 2.1), False)
sketch5.addGeometry(Part.Circle(Vector(-9.8, 162, 0), Vector(0, 0, 1), 2.1), False)
sketch5.addGeometry(Part.Circle(Vector(-9.8, 322, 0), Vector(0, 0, 1), 2.1), False)
sketch5.addGeometry(Part.Circle(Vector(490.2, -8, 0), Vector(0, 0, 1), 2.1), False)
sketch5.addGeometry(Part.Circle(Vector(-9.8, -23, 0), Vector(0, 0, 1), 2.1), False)
sketch5.addConstraint(Sketcher.Constraint("Equal", 0, 1))
sketch5.addConstraint(Sketcher.Constraint("Equal", 1, 2))
sketch5.addConstraint(Sketcher.Constraint("Equal", 2, 3))
sketch5.addConstraint(Sketcher.Constraint("Equal", 3, 4))
sketch5.addConstraint(Sketcher.Constraint("Equal", 4, 5))
sketch5.addConstraint(Sketcher.Constraint("Equal", 5, 6))
sketch5.addConstraint(Sketcher.Constraint("Equal", 6, 7))
sketch5.addConstraint(Sketcher.Constraint("Equal", 7, 8))
sketch5.addConstraint(Sketcher.Constraint("Horizontal", 0, 3, 8, 3))
sketch5.addConstraint(Sketcher.Constraint("Vertical", 0, 3, 1, 3))
sketch5.addConstraint(Sketcher.Constraint("Vertical", 1, 3, 3, 3))
sketch5.addConstraint(Sketcher.Constraint("Vertical", 2, 3, 4, 3))
sketch5.addConstraint(Sketcher.Constraint("Vertical", 4, 3, 5, 3))
sketch5.addConstraint(Sketcher.Constraint("Vertical", 5, 3, 6, 3))
sketch5.addConstraint(Sketcher.Constraint("Vertical", 3, 3, 7, 3))
sketch5.addConstraint(Sketcher.Constraint("Vertical", 6, 3, 8, 3))
sketch5.addConstraint(Sketcher.Constraint("DistanceY", 3, 3, 1, 3, 15.0))
sketch5.addConstraint(Sketcher.Constraint("DistanceY", 2, 3, 4, 3, 15.0))
sketch5.addConstraint(Sketcher.Constraint("DistanceY", 5, 3, 2, 3, 15.0))
sketch5.addConstraint(Sketcher.Constraint("DistanceY", 0, 3, 7, 3, 15.0))
sketch5.addConstraint(Sketcher.Constraint("Diameter", 0, 4.2))
sketch5.addConstraint(Sketcher.Constraint("DistanceY", 0, 3, 1, 3, 160.0))
sketch5.addConstraint(Sketcher.Constraint("DistanceX", 2, 3, 1, 3, 500.0))
sketch5.addConstraint(Sketcher.Constraint("DistanceY", 1, 3, 2, 3, 40.0))
sketch5.addConstraint(Sketcher.Constraint("DistanceY", 4, 3, 6, 3, 130.0))
sketch5.addConstraint(Sketcher.Constraint("DistanceX", -1, 1, 0, 3, 490.19))
sketch5.addConstraint(Sketcher.Constraint("DistanceY", 0, 3, -1, 1, 23.01))
sketch5.setExpression("Constraints[20]", "Params.sketch5_diameter")
pocket2 = body.newObject("PartDesign::Pocket", "Pocket001")
pocket2.Profile = sketch5
pocket2.Type = "ThroughAll"
pocket2.Reversed = True

doc.recompute()
